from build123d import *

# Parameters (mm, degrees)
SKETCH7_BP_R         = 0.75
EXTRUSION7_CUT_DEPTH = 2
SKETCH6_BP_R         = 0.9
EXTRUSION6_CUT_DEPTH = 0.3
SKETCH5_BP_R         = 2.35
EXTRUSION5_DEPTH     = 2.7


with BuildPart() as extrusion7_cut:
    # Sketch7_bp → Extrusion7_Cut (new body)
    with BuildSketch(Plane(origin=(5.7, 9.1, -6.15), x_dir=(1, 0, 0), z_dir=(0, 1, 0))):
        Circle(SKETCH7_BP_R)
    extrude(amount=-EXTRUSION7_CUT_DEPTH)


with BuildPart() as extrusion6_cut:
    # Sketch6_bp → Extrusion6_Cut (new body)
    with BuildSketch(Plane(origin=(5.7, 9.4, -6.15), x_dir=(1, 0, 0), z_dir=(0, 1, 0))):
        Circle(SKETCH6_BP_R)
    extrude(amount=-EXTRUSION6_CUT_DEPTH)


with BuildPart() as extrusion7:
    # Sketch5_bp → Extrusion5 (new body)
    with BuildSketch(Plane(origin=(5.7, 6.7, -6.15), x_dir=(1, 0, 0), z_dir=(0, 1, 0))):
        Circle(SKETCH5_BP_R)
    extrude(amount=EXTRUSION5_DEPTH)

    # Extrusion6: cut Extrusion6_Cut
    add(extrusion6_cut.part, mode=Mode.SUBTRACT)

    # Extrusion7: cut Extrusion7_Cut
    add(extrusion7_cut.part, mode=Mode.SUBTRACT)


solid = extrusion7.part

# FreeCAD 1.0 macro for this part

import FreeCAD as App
import Part
import Sketcher

doc = App.newDocument("Part")
body = doc.addObject("PartDesign::Body", "Body")

sketch1 = body.newObject("Sketcher::SketchObject", "Sketch")
sketch1.AttachmentSupport = (doc.getObject("XZ_Plane"), [""])
sketch1.MapMode = "FlatFace"
sketch1.AttachmentOffset = App.Placement(App.Vector(0, 0, -9.1), App.Rotation())
sketch1.addGeometry(Part.Circle(App.Vector(5.7, -6.2, 0), App.Vector(0, 0, 1), 0.8), False)
sketch1.addConstraint(Sketcher.Constraint("Diameter", 0, 1.5))
sketch1.addConstraint(Sketcher.Constraint("DistanceX", -1, 1, 0, 3, 5.7))
sketch1.addConstraint(Sketcher.Constraint("DistanceY", 0, 3, -1, 1, 6.15))
pad1 = body.newObject("PartDesign::Pad", "Pad")
pad1.Profile = sketch1
pad1.Length = 2
body2 = doc.addObject("PartDesign::Body", "Body001")

sketch2 = body2.newObject("Sketcher::SketchObject", "Sketch001")
sketch2.AttachmentSupport = (doc.getObject("XZ_Plane001"), [""])
sketch2.MapMode = "FlatFace"
sketch2.AttachmentOffset = App.Placement(App.Vector(0, 0, -9.4), App.Rotation())
sketch2.addGeometry(Part.Circle(App.Vector(5.7, -6.2, 0), App.Vector(0, 0, 1), 0.9), False)
sketch2.addConstraint(Sketcher.Constraint("Diameter", 0, 1.8))
sketch2.addConstraint(Sketcher.Constraint("DistanceX", -1, 1, 0, 3, 5.7))
sketch2.addConstraint(Sketcher.Constraint("DistanceY", 0, 3, -1, 1, 6.15))
pad2 = body2.newObject("PartDesign::Pad", "Pad001")
pad2.Profile = sketch2
pad2.Length = 0.3
body3 = doc.addObject("PartDesign::Body", "Body002")

sketch3 = body3.newObject("Sketcher::SketchObject", "Sketch002")
sketch3.AttachmentSupport = (doc.getObject("XZ_Plane002"), [""])
sketch3.MapMode = "FlatFace"
sketch3.AttachmentOffset = App.Placement(App.Vector(0, 0, -6.7), App.Rotation())
sketch3.addGeometry(Part.Circle(App.Vector(5.7, -6.2, 0), App.Vector(0, 0, 1), 2.4), False)
sketch3.addConstraint(Sketcher.Constraint("Diameter", 0, 4.7))
sketch3.addConstraint(Sketcher.Constraint("DistanceX", -1, 1, 0, 3, 5.7))
sketch3.addConstraint(Sketcher.Constraint("DistanceY", 0, 3, -1, 1, 6.15))
pad3 = body3.newObject("PartDesign::Pad", "Pad002")
pad3.Profile = sketch3
pad3.Length = 2.7
pad3.Reversed = True
doc.recompute()

boolean = body3.newObject("PartDesign::Boolean", "Boolean")
boolean.Type = "Cut"
boolean.addObjects([body2])
doc.recompute()

boolean2 = body3.newObject("PartDesign::Boolean", "Boolean001")
boolean2.Type = "Cut"
boolean2.addObjects([body])

doc.recompute()
